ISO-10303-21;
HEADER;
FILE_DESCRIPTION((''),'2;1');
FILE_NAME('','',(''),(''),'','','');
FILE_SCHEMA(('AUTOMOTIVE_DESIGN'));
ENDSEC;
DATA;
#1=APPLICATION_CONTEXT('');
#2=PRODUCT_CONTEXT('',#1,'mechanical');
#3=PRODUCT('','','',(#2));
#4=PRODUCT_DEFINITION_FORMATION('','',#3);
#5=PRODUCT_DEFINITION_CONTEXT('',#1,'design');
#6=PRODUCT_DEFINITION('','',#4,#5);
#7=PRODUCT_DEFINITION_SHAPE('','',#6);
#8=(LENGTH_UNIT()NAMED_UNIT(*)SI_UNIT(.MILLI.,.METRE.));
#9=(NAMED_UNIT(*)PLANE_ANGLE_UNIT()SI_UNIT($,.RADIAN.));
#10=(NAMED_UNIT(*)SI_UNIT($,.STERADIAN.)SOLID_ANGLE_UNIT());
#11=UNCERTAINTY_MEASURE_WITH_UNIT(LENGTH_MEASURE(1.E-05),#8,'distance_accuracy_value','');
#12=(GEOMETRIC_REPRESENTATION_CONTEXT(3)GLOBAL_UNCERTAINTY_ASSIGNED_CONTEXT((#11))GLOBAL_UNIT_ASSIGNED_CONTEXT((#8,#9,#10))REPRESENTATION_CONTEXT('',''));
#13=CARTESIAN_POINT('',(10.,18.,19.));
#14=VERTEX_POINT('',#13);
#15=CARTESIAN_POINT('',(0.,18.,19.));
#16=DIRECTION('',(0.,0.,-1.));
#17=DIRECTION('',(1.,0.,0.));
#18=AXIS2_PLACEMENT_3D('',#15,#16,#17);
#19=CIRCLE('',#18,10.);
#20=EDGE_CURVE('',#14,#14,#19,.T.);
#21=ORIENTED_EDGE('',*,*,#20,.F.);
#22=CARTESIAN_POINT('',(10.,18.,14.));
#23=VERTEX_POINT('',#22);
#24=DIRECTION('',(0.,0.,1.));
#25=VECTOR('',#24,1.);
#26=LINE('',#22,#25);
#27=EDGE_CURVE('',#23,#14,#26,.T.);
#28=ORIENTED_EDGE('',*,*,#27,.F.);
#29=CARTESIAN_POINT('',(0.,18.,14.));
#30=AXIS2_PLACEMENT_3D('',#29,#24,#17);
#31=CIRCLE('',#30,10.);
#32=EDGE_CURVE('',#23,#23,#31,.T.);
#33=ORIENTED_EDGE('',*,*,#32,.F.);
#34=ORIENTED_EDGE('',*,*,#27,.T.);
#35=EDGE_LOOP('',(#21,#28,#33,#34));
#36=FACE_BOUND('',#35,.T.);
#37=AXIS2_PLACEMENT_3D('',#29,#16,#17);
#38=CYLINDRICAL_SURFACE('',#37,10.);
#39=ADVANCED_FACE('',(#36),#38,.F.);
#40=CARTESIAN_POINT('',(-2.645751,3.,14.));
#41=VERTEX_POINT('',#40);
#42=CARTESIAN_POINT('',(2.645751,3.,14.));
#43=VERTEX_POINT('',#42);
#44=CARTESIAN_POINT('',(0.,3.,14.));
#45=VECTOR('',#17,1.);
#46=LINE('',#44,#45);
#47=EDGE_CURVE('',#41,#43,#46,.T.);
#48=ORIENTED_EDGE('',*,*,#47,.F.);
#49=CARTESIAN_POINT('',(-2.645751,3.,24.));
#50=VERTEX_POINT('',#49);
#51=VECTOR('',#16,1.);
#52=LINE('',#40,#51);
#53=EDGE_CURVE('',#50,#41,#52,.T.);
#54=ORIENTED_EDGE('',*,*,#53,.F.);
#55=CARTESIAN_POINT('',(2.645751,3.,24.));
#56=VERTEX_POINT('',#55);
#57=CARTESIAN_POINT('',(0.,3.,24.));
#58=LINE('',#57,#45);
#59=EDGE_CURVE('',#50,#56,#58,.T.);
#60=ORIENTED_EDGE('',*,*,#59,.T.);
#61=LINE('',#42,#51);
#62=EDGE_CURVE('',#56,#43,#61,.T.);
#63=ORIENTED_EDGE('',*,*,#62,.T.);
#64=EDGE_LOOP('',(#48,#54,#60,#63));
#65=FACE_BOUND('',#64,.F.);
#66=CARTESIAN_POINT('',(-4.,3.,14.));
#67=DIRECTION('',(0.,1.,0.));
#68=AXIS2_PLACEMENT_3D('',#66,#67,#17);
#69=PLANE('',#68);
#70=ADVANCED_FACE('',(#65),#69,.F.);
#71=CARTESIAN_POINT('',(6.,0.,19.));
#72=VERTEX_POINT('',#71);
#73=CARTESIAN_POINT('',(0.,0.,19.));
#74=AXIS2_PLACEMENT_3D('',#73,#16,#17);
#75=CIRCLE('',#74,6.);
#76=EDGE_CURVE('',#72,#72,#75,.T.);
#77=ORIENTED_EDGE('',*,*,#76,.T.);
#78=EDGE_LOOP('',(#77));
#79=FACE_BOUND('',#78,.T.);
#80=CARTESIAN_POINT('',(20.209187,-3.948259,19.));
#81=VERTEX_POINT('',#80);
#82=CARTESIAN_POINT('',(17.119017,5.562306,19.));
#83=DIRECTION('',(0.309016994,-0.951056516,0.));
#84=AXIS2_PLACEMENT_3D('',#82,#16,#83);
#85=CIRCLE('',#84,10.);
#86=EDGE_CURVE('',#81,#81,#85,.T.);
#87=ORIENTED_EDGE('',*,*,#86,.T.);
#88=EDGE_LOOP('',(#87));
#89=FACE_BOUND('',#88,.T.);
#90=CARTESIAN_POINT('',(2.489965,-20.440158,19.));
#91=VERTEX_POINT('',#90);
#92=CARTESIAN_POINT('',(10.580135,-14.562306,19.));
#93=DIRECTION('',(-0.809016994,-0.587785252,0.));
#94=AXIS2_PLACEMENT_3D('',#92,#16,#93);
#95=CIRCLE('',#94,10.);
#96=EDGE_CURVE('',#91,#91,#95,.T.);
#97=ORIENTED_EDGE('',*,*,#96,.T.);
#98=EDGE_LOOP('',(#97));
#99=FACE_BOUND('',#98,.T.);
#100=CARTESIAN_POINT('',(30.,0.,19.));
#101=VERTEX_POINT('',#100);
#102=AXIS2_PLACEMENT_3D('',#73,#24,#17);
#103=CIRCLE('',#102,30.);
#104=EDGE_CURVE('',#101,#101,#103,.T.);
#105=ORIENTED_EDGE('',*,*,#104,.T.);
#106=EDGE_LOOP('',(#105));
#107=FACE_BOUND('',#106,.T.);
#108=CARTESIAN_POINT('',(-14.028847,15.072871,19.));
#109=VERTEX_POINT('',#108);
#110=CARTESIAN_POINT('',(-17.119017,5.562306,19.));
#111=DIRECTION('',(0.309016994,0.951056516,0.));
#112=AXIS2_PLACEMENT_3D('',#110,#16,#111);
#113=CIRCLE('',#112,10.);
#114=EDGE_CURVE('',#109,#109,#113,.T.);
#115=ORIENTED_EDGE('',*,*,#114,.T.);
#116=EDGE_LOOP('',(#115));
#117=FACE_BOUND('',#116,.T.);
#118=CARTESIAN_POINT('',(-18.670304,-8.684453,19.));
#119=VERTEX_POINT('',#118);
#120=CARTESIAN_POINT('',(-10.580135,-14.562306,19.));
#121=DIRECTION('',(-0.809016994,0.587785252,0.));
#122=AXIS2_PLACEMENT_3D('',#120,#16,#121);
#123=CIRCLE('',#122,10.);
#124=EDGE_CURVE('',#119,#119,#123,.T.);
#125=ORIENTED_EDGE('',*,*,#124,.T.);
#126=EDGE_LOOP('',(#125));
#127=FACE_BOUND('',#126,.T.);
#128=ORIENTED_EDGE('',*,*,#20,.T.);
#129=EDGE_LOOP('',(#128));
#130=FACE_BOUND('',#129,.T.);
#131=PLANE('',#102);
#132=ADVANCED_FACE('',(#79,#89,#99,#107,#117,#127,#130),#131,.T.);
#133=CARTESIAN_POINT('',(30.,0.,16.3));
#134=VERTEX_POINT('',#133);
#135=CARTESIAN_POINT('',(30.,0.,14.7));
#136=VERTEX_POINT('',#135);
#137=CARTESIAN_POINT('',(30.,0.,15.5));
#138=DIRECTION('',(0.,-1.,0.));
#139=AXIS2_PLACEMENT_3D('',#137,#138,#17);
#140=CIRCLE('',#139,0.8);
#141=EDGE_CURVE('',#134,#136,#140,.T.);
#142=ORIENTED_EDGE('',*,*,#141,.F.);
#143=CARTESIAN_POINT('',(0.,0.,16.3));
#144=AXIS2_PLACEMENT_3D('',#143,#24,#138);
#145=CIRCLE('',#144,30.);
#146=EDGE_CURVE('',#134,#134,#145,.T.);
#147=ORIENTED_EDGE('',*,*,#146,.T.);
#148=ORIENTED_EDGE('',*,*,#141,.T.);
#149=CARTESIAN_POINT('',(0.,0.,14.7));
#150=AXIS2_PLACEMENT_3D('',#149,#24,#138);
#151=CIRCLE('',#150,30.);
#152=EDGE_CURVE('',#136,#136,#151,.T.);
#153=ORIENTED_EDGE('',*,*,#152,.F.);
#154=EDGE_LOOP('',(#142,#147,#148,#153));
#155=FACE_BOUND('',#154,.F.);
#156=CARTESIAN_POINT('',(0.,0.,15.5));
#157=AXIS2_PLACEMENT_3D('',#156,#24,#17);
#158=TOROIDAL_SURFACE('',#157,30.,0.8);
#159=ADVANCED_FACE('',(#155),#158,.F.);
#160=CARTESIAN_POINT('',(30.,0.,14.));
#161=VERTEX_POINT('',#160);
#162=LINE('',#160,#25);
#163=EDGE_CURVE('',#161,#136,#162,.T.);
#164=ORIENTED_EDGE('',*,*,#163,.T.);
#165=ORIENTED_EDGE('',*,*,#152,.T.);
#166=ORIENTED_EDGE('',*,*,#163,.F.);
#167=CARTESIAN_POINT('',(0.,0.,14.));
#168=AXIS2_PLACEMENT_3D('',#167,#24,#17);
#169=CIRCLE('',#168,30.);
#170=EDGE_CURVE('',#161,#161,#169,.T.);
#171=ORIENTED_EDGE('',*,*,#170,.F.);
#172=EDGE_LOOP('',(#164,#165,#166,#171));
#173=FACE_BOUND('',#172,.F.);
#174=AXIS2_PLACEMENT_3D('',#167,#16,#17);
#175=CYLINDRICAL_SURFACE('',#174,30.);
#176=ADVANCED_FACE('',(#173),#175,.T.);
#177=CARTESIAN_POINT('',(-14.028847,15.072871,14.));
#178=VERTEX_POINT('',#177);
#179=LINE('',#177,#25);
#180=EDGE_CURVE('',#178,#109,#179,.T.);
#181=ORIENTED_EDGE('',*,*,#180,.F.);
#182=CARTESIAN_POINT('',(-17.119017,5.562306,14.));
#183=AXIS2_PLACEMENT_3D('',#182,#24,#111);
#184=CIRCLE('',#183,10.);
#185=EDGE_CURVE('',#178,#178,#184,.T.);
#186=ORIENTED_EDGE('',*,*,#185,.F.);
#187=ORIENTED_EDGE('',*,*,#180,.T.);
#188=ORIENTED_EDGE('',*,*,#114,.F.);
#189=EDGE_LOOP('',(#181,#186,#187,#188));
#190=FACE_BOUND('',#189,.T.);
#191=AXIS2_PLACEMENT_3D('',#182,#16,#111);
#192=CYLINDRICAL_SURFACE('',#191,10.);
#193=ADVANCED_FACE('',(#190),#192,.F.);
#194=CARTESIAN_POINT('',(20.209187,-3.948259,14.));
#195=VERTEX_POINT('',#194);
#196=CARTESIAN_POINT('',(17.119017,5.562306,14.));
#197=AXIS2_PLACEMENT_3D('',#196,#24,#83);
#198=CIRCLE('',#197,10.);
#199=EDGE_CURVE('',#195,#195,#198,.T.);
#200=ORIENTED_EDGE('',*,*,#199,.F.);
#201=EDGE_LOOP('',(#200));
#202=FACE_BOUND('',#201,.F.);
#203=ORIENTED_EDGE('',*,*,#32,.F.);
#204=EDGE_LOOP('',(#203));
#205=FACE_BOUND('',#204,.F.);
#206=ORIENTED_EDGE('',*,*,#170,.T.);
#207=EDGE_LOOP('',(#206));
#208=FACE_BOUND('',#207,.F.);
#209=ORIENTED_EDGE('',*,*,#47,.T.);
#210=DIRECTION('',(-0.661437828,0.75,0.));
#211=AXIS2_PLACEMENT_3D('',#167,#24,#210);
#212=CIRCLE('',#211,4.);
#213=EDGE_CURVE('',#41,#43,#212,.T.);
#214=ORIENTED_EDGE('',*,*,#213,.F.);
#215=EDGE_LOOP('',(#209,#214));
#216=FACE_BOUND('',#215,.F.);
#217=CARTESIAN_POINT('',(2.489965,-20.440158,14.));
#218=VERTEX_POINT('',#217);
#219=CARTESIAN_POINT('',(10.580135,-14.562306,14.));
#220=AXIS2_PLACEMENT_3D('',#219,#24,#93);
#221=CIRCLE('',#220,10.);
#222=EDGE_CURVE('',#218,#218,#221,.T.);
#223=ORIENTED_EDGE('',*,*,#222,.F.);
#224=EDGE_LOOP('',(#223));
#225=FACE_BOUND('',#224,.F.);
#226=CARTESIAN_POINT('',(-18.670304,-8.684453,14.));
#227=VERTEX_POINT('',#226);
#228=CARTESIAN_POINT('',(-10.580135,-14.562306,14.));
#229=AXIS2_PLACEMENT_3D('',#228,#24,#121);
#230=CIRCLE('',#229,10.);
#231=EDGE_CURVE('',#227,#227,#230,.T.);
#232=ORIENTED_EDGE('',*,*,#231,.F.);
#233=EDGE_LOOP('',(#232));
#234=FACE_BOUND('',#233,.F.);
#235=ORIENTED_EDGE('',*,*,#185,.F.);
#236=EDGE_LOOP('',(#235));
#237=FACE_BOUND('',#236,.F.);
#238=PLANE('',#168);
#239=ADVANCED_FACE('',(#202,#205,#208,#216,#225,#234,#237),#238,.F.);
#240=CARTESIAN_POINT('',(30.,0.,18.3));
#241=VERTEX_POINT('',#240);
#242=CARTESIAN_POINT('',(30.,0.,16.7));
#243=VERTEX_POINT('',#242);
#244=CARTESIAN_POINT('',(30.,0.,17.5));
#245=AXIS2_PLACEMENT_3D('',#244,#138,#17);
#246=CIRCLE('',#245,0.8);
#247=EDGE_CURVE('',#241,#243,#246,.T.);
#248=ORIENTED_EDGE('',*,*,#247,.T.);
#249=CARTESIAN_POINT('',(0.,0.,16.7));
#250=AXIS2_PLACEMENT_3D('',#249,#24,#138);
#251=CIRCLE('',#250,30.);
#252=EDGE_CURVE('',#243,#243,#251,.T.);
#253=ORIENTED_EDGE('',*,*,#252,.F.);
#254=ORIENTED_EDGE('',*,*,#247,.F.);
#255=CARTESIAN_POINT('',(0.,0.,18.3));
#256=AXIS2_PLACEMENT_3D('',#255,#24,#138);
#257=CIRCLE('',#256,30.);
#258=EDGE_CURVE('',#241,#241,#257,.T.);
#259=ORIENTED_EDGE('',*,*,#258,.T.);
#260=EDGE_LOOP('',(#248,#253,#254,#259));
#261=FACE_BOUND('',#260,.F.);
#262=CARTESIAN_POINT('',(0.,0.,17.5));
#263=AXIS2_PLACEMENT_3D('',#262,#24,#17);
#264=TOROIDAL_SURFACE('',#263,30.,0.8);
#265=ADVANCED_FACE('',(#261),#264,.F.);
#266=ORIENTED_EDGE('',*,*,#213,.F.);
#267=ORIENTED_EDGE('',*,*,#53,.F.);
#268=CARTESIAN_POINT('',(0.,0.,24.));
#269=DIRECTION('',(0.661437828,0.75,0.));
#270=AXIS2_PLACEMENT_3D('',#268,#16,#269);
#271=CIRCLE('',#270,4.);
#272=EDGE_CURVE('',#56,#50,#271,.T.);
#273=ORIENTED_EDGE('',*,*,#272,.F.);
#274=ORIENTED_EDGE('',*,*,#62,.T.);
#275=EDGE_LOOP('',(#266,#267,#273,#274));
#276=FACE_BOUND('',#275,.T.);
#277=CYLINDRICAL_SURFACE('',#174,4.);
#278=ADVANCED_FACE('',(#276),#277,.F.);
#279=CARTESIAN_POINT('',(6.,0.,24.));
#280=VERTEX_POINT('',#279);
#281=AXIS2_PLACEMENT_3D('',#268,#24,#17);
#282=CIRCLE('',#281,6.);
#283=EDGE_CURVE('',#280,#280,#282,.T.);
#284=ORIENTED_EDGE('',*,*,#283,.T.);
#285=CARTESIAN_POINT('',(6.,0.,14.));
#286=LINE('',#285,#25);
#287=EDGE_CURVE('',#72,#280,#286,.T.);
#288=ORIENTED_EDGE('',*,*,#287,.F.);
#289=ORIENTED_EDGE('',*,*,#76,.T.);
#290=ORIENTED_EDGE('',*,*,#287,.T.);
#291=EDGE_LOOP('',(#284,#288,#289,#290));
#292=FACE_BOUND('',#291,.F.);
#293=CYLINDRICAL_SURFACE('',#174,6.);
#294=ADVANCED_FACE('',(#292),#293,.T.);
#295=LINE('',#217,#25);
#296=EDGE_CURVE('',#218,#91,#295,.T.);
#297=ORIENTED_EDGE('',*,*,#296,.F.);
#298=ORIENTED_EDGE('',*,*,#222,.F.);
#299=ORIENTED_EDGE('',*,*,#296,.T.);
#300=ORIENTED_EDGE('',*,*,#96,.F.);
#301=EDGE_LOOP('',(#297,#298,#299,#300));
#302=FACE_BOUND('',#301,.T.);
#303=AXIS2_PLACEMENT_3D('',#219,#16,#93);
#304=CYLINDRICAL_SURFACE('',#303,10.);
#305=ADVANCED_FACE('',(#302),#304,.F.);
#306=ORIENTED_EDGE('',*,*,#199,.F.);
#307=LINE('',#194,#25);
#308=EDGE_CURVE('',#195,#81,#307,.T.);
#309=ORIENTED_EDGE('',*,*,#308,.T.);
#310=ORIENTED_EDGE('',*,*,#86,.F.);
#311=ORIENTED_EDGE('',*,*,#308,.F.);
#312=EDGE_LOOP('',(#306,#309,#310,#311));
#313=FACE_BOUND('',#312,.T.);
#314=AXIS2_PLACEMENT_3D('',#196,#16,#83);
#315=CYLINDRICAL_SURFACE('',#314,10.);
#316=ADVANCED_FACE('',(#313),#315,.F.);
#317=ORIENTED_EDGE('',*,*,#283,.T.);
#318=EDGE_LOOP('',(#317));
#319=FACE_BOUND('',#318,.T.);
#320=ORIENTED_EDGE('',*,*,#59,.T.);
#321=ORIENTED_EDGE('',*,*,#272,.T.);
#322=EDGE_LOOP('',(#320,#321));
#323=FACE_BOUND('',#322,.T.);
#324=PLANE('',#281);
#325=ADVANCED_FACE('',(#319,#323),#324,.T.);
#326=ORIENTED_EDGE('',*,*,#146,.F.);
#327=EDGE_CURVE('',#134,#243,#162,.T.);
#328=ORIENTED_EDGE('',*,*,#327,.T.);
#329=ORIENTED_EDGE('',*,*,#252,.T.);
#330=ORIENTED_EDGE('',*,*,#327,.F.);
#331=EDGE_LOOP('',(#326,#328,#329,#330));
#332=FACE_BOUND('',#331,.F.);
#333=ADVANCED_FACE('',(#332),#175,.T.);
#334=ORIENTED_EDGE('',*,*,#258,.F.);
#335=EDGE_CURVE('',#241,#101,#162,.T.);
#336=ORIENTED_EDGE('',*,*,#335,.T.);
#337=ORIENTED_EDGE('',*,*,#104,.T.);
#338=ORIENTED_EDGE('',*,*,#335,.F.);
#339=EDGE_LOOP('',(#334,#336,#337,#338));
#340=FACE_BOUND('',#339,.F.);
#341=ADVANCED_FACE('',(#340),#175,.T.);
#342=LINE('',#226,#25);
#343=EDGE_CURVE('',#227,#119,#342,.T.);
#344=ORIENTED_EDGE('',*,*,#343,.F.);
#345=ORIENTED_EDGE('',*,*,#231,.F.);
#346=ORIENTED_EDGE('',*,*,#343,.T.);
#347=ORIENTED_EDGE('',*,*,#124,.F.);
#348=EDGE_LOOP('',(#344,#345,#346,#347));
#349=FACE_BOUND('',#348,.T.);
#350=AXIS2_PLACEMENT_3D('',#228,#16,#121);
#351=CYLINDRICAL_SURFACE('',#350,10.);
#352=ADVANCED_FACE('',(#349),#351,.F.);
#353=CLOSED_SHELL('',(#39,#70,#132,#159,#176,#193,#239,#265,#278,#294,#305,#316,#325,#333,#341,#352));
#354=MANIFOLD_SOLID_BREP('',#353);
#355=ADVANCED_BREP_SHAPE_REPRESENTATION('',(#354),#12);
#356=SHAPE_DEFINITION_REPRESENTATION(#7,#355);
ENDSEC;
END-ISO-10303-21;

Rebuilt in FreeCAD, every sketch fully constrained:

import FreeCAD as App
import Part
import Sketcher


def add_polygon(sketch, points):
    """Adds a closed chain of lines whose ends are joined by coincident constraints."""
    first, n = sketch.GeometryCount, len(points)
    for a, b in zip(points, points[1:] + points[:1]):
        sketch.addGeometry(Part.LineSegment(App.Vector(*a, 0), App.Vector(*b, 0)), False)
    for i in range(n):
        sketch.addConstraint(Sketcher.Constraint("Coincident", first + i, 2, first + (i + 1) % n, 1))

doc = App.newDocument("Part")
body = doc.addObject("PartDesign::Body", "Body")

# Sketch on XY plane
sketch1 = doc.addObject("Sketcher::SketchObject", "Sketch")
body.addObject(sketch1)
sketch1.AttachmentSupport = (doc.XY_Plane, [""])
sketch1.MapMode = "FlatFace"
sketch1.addGeometry(Part.Circle(App.Vector(0, 18, 0), App.Vector(0, 0, 1), 10), False)
sketch1.addConstraint(Sketcher.Constraint("PointOnObject", 0, 3, -2))
sketch1.addConstraint(Sketcher.Constraint("Diameter", 0, 20.0))
sketch1.addConstraint(Sketcher.Constraint("DistanceY", -1, 1, 0, 3, 18.0))
pad1 = doc.addObject("PartDesign::Pad", "Pad")
body.addObject(pad1)
pad1.Profile = sketch1
pad1.Length = 10
body2 = doc.addObject("PartDesign::Body", "Body001")
body2.AllowCompound = True
doc.recompute()

body2.BaseFeature = body
doc.recompute()

body3 = doc.addObject("PartDesign::Body", "Body002")
body3.BaseFeature = body
body3.Placement = App.Placement(App.Vector(0, 0, 0), App.Rotation(App.Vector(0, 0, 1), 72))
boolean = doc.addObject("PartDesign::Boolean", "Boolean")
body2.addObject(boolean)
boolean.Type = "Fuse"
boolean.addObjects([body3])
doc.recompute()

body4 = doc.addObject("PartDesign::Body", "Body003")
body4.BaseFeature = body
body4.Placement = App.Placement(App.Vector(0, 0, 0), App.Rotation(App.Vector(0, 0, 1), 144))
boolean2 = doc.addObject("PartDesign::Boolean", "Boolean001")
body2.addObject(boolean2)
boolean2.Type = "Fuse"
boolean2.addObjects([body4])
doc.recompute()

body5 = doc.addObject("PartDesign::Body", "Body004")
body5.BaseFeature = body
body5.Placement = App.Placement(App.Vector(0, 0, 0), App.Rotation(App.Vector(0, 0, 1), 216))
boolean3 = doc.addObject("PartDesign::Boolean", "Boolean002")
body2.addObject(boolean3)
boolean3.Type = "Fuse"
boolean3.addObjects([body5])
doc.recompute()

body.Placement = App.Placement(App.Vector(0, 0, 0), App.Rotation(App.Vector(0, 0, 1), 288))
boolean4 = doc.addObject("PartDesign::Boolean", "Boolean003")
body2.addObject(boolean4)
boolean4.Type = "Fuse"
boolean4.addObjects([body])
body6 = doc.addObject("PartDesign::Body", "Body005")

# Sketch on XZ plane
sketch2 = doc.addObject("Sketcher::SketchObject", "Sketch001")
body6.addObject(sketch2)
sketch2.AttachmentSupport = (doc.getObject("XZ_Plane005"), [""])
sketch2.MapMode = "FlatFace"
sketch2.addGeometry(Part.Circle(App.Vector(30, 3.5, 0), App.Vector(0, 0, 1), 0.8), False)
sketch2.addConstraint(Sketcher.Constraint("Diameter", 0, 1.6))
sketch2.addConstraint(Sketcher.Constraint("DistanceX", -1, 1, 0, 3, 30.0))
sketch2.addConstraint(Sketcher.Constraint("DistanceY", -1, 1, 0, 3, 3.5))
revolution = doc.addObject("PartDesign::Revolution", "Revolution")
body6.addObject(revolution)
revolution.Profile = sketch2
revolution.ReferenceAxis = (sketch2, ["V_Axis"])
revolution.Angle = 360
body7 = doc.addObject("PartDesign::Body", "Body006")

# Sketch on XZ plane
sketch3 = doc.addObject("Sketcher::SketchObject", "Sketch002")
body7.addObject(sketch3)
sketch3.AttachmentSupport = (doc.getObject("XZ_Plane006"), [""])
sketch3.MapMode = "FlatFace"
sketch3.addGeometry(Part.Circle(App.Vector(30, 1.5, 0), App.Vector(0, 0, 1), 0.8), False)
sketch3.addConstraint(Sketcher.Constraint("Diameter", 0, 1.6))
sketch3.addConstraint(Sketcher.Constraint("DistanceX", -1, 1, 0, 3, 30.0))
sketch3.addConstraint(Sketcher.Constraint("DistanceY", -1, 1, 0, 3, 1.5))
revolution2 = doc.addObject("PartDesign::Revolution", "Revolution001")
body7.addObject(revolution2)
revolution2.Profile = sketch3
revolution2.ReferenceAxis = (sketch3, ["V_Axis"])
revolution2.Angle = 360
body8 = doc.addObject("PartDesign::Body", "Body007")

# Sketch on XY plane
sketch4 = doc.addObject("Sketcher::SketchObject", "Sketch003")
body8.addObject(sketch4)
sketch4.AttachmentSupport = (doc.getObject("XY_Plane007"), [""])
sketch4.MapMode = "FlatFace"
sketch4.addGeometry(Part.Circle(App.Vector(0, 0, 0), App.Vector(0, 0, 1), 4), False)
sketch4.addConstraint(Sketcher.Constraint("Coincident", 0, 3, -1, 1))
sketch4.addConstraint(Sketcher.Constraint("Diameter", 0, 8.0))
pad2 = doc.addObject("PartDesign::Pad", "Pad001")
body8.addObject(pad2)
pad2.Profile = sketch4
pad2.Length = 10
body9 = doc.addObject("PartDesign::Body", "Body008")

# Sketch on XY plane
sketch5 = doc.addObject("Sketcher::SketchObject", "Sketch004")
body9.addObject(sketch5)
sketch5.AttachmentSupport = (doc.getObject("XY_Plane008"), [""])
sketch5.MapMode = "FlatFace"
add_polygon(sketch5, [(-4, 3), (-4, -4), (4, -4), (4, 3)])  # lines 0-3
sketch5.addConstraint(Sketcher.Constraint("Vertical", 0))
sketch5.addConstraint(Sketcher.Constraint("Horizontal", 1))
sketch5.addConstraint(Sketcher.Constraint("Vertical", 2))
sketch5.addConstraint(Sketcher.Constraint("Horizontal", 3))
sketch5.addConstraint(Sketcher.Constraint("DistanceX", 1, 1, 1, 2, 8.0))
sketch5.addConstraint(Sketcher.Constraint("DistanceY", 0, 2, 0, 1, 7.0))
sketch5.addConstraint(Sketcher.Constraint("DistanceX", 0, 2, -1, 1, 4.0))
sketch5.addConstraint(Sketcher.Constraint("DistanceY", 0, 2, -1, 1, 4.0))
pad3 = doc.addObject("PartDesign::Pad", "Pad002")
body9.addObject(pad3)
pad3.Profile = sketch5
pad3.Length = 10
doc.recompute()

boolean5 = doc.addObject("PartDesign::Boolean", "Boolean004")
body9.addObject(boolean5)
boolean5.Type = "Common"
boolean5.addObjects([body8])
body10 = doc.addObject("PartDesign::Body", "Body009")

# Sketch on XY plane
sketch6 = doc.addObject("Sketcher::SketchObject", "Sketch005")
body10.addObject(sketch6)
sketch6.AttachmentSupport = (doc.getObject("XY_Plane009"), [""])
sketch6.MapMode = "FlatFace"
sketch6.addGeometry(Part.Circle(App.Vector(0, 0, 0), App.Vector(0, 0, 1), 6), False)
sketch6.addConstraint(Sketcher.Constraint("Coincident", 0, 3, -1, 1))
sketch6.addConstraint(Sketcher.Constraint("Diameter", 0, 12.0))
pad4 = doc.addObject("PartDesign::Pad", "Pad003")
body10.addObject(pad4)
pad4.Profile = sketch6
pad4.Length = 10
body11 = doc.addObject("PartDesign::Body", "Body010")

# Sketch on XY plane
sketch7 = doc.addObject("Sketcher::SketchObject", "Sketch006")
body11.addObject(sketch7)
sketch7.AttachmentSupport = (doc.getObject("XY_Plane010"), [""])
sketch7.MapMode = "FlatFace"
sketch7.addGeometry(Part.Circle(App.Vector(0, 0, 0), App.Vector(0, 0, 1), 30), False)
sketch7.addConstraint(Sketcher.Constraint("Coincident", 0, 3, -1, 1))
sketch7.addConstraint(Sketcher.Constraint("Diameter", 0, 60.0))
pad5 = doc.addObject("PartDesign::Pad", "Pad004")
body11.addObject(pad5)
pad5.Profile = sketch7
pad5.Length = 5
doc.recompute()

boolean6 = doc.addObject("PartDesign::Boolean", "Boolean005")
body11.addObject(boolean6)
boolean6.Type = "Fuse"
boolean6.addObjects([body10])
doc.recompute()

boolean7 = doc.addObject("PartDesign::Boolean", "Boolean006")
body11.addObject(boolean7)
boolean7.Type = "Cut"
boolean7.addObjects([body9])
doc.recompute()

boolean8 = doc.addObject("PartDesign::Boolean", "Boolean007")
body11.addObject(boolean8)
boolean8.Type = "Cut"
boolean8.addObjects([body7])
doc.recompute()

boolean9 = doc.addObject("PartDesign::Boolean", "Boolean008")
body11.addObject(boolean9)
boolean9.Type = "Cut"
boolean9.addObjects([body6])
doc.recompute()

boolean10 = doc.addObject("PartDesign::Boolean", "Boolean009")
body11.addObject(boolean10)
boolean10.Type = "Cut"
boolean10.addObjects([body2])
body12 = doc.addObject("PartDesign::Body", "Body011")
doc.recompute()

body11.Placement = App.Placement(App.Vector(0, 0, 14), App.Rotation(App.Vector(0, 0, 1), 0))
boolean11 = doc.addObject("PartDesign::Boolean", "Boolean010")
body12.addObject(boolean11)
boolean11.Type = "Fuse"
boolean11.addObjects([body11])

doc.recompute()
